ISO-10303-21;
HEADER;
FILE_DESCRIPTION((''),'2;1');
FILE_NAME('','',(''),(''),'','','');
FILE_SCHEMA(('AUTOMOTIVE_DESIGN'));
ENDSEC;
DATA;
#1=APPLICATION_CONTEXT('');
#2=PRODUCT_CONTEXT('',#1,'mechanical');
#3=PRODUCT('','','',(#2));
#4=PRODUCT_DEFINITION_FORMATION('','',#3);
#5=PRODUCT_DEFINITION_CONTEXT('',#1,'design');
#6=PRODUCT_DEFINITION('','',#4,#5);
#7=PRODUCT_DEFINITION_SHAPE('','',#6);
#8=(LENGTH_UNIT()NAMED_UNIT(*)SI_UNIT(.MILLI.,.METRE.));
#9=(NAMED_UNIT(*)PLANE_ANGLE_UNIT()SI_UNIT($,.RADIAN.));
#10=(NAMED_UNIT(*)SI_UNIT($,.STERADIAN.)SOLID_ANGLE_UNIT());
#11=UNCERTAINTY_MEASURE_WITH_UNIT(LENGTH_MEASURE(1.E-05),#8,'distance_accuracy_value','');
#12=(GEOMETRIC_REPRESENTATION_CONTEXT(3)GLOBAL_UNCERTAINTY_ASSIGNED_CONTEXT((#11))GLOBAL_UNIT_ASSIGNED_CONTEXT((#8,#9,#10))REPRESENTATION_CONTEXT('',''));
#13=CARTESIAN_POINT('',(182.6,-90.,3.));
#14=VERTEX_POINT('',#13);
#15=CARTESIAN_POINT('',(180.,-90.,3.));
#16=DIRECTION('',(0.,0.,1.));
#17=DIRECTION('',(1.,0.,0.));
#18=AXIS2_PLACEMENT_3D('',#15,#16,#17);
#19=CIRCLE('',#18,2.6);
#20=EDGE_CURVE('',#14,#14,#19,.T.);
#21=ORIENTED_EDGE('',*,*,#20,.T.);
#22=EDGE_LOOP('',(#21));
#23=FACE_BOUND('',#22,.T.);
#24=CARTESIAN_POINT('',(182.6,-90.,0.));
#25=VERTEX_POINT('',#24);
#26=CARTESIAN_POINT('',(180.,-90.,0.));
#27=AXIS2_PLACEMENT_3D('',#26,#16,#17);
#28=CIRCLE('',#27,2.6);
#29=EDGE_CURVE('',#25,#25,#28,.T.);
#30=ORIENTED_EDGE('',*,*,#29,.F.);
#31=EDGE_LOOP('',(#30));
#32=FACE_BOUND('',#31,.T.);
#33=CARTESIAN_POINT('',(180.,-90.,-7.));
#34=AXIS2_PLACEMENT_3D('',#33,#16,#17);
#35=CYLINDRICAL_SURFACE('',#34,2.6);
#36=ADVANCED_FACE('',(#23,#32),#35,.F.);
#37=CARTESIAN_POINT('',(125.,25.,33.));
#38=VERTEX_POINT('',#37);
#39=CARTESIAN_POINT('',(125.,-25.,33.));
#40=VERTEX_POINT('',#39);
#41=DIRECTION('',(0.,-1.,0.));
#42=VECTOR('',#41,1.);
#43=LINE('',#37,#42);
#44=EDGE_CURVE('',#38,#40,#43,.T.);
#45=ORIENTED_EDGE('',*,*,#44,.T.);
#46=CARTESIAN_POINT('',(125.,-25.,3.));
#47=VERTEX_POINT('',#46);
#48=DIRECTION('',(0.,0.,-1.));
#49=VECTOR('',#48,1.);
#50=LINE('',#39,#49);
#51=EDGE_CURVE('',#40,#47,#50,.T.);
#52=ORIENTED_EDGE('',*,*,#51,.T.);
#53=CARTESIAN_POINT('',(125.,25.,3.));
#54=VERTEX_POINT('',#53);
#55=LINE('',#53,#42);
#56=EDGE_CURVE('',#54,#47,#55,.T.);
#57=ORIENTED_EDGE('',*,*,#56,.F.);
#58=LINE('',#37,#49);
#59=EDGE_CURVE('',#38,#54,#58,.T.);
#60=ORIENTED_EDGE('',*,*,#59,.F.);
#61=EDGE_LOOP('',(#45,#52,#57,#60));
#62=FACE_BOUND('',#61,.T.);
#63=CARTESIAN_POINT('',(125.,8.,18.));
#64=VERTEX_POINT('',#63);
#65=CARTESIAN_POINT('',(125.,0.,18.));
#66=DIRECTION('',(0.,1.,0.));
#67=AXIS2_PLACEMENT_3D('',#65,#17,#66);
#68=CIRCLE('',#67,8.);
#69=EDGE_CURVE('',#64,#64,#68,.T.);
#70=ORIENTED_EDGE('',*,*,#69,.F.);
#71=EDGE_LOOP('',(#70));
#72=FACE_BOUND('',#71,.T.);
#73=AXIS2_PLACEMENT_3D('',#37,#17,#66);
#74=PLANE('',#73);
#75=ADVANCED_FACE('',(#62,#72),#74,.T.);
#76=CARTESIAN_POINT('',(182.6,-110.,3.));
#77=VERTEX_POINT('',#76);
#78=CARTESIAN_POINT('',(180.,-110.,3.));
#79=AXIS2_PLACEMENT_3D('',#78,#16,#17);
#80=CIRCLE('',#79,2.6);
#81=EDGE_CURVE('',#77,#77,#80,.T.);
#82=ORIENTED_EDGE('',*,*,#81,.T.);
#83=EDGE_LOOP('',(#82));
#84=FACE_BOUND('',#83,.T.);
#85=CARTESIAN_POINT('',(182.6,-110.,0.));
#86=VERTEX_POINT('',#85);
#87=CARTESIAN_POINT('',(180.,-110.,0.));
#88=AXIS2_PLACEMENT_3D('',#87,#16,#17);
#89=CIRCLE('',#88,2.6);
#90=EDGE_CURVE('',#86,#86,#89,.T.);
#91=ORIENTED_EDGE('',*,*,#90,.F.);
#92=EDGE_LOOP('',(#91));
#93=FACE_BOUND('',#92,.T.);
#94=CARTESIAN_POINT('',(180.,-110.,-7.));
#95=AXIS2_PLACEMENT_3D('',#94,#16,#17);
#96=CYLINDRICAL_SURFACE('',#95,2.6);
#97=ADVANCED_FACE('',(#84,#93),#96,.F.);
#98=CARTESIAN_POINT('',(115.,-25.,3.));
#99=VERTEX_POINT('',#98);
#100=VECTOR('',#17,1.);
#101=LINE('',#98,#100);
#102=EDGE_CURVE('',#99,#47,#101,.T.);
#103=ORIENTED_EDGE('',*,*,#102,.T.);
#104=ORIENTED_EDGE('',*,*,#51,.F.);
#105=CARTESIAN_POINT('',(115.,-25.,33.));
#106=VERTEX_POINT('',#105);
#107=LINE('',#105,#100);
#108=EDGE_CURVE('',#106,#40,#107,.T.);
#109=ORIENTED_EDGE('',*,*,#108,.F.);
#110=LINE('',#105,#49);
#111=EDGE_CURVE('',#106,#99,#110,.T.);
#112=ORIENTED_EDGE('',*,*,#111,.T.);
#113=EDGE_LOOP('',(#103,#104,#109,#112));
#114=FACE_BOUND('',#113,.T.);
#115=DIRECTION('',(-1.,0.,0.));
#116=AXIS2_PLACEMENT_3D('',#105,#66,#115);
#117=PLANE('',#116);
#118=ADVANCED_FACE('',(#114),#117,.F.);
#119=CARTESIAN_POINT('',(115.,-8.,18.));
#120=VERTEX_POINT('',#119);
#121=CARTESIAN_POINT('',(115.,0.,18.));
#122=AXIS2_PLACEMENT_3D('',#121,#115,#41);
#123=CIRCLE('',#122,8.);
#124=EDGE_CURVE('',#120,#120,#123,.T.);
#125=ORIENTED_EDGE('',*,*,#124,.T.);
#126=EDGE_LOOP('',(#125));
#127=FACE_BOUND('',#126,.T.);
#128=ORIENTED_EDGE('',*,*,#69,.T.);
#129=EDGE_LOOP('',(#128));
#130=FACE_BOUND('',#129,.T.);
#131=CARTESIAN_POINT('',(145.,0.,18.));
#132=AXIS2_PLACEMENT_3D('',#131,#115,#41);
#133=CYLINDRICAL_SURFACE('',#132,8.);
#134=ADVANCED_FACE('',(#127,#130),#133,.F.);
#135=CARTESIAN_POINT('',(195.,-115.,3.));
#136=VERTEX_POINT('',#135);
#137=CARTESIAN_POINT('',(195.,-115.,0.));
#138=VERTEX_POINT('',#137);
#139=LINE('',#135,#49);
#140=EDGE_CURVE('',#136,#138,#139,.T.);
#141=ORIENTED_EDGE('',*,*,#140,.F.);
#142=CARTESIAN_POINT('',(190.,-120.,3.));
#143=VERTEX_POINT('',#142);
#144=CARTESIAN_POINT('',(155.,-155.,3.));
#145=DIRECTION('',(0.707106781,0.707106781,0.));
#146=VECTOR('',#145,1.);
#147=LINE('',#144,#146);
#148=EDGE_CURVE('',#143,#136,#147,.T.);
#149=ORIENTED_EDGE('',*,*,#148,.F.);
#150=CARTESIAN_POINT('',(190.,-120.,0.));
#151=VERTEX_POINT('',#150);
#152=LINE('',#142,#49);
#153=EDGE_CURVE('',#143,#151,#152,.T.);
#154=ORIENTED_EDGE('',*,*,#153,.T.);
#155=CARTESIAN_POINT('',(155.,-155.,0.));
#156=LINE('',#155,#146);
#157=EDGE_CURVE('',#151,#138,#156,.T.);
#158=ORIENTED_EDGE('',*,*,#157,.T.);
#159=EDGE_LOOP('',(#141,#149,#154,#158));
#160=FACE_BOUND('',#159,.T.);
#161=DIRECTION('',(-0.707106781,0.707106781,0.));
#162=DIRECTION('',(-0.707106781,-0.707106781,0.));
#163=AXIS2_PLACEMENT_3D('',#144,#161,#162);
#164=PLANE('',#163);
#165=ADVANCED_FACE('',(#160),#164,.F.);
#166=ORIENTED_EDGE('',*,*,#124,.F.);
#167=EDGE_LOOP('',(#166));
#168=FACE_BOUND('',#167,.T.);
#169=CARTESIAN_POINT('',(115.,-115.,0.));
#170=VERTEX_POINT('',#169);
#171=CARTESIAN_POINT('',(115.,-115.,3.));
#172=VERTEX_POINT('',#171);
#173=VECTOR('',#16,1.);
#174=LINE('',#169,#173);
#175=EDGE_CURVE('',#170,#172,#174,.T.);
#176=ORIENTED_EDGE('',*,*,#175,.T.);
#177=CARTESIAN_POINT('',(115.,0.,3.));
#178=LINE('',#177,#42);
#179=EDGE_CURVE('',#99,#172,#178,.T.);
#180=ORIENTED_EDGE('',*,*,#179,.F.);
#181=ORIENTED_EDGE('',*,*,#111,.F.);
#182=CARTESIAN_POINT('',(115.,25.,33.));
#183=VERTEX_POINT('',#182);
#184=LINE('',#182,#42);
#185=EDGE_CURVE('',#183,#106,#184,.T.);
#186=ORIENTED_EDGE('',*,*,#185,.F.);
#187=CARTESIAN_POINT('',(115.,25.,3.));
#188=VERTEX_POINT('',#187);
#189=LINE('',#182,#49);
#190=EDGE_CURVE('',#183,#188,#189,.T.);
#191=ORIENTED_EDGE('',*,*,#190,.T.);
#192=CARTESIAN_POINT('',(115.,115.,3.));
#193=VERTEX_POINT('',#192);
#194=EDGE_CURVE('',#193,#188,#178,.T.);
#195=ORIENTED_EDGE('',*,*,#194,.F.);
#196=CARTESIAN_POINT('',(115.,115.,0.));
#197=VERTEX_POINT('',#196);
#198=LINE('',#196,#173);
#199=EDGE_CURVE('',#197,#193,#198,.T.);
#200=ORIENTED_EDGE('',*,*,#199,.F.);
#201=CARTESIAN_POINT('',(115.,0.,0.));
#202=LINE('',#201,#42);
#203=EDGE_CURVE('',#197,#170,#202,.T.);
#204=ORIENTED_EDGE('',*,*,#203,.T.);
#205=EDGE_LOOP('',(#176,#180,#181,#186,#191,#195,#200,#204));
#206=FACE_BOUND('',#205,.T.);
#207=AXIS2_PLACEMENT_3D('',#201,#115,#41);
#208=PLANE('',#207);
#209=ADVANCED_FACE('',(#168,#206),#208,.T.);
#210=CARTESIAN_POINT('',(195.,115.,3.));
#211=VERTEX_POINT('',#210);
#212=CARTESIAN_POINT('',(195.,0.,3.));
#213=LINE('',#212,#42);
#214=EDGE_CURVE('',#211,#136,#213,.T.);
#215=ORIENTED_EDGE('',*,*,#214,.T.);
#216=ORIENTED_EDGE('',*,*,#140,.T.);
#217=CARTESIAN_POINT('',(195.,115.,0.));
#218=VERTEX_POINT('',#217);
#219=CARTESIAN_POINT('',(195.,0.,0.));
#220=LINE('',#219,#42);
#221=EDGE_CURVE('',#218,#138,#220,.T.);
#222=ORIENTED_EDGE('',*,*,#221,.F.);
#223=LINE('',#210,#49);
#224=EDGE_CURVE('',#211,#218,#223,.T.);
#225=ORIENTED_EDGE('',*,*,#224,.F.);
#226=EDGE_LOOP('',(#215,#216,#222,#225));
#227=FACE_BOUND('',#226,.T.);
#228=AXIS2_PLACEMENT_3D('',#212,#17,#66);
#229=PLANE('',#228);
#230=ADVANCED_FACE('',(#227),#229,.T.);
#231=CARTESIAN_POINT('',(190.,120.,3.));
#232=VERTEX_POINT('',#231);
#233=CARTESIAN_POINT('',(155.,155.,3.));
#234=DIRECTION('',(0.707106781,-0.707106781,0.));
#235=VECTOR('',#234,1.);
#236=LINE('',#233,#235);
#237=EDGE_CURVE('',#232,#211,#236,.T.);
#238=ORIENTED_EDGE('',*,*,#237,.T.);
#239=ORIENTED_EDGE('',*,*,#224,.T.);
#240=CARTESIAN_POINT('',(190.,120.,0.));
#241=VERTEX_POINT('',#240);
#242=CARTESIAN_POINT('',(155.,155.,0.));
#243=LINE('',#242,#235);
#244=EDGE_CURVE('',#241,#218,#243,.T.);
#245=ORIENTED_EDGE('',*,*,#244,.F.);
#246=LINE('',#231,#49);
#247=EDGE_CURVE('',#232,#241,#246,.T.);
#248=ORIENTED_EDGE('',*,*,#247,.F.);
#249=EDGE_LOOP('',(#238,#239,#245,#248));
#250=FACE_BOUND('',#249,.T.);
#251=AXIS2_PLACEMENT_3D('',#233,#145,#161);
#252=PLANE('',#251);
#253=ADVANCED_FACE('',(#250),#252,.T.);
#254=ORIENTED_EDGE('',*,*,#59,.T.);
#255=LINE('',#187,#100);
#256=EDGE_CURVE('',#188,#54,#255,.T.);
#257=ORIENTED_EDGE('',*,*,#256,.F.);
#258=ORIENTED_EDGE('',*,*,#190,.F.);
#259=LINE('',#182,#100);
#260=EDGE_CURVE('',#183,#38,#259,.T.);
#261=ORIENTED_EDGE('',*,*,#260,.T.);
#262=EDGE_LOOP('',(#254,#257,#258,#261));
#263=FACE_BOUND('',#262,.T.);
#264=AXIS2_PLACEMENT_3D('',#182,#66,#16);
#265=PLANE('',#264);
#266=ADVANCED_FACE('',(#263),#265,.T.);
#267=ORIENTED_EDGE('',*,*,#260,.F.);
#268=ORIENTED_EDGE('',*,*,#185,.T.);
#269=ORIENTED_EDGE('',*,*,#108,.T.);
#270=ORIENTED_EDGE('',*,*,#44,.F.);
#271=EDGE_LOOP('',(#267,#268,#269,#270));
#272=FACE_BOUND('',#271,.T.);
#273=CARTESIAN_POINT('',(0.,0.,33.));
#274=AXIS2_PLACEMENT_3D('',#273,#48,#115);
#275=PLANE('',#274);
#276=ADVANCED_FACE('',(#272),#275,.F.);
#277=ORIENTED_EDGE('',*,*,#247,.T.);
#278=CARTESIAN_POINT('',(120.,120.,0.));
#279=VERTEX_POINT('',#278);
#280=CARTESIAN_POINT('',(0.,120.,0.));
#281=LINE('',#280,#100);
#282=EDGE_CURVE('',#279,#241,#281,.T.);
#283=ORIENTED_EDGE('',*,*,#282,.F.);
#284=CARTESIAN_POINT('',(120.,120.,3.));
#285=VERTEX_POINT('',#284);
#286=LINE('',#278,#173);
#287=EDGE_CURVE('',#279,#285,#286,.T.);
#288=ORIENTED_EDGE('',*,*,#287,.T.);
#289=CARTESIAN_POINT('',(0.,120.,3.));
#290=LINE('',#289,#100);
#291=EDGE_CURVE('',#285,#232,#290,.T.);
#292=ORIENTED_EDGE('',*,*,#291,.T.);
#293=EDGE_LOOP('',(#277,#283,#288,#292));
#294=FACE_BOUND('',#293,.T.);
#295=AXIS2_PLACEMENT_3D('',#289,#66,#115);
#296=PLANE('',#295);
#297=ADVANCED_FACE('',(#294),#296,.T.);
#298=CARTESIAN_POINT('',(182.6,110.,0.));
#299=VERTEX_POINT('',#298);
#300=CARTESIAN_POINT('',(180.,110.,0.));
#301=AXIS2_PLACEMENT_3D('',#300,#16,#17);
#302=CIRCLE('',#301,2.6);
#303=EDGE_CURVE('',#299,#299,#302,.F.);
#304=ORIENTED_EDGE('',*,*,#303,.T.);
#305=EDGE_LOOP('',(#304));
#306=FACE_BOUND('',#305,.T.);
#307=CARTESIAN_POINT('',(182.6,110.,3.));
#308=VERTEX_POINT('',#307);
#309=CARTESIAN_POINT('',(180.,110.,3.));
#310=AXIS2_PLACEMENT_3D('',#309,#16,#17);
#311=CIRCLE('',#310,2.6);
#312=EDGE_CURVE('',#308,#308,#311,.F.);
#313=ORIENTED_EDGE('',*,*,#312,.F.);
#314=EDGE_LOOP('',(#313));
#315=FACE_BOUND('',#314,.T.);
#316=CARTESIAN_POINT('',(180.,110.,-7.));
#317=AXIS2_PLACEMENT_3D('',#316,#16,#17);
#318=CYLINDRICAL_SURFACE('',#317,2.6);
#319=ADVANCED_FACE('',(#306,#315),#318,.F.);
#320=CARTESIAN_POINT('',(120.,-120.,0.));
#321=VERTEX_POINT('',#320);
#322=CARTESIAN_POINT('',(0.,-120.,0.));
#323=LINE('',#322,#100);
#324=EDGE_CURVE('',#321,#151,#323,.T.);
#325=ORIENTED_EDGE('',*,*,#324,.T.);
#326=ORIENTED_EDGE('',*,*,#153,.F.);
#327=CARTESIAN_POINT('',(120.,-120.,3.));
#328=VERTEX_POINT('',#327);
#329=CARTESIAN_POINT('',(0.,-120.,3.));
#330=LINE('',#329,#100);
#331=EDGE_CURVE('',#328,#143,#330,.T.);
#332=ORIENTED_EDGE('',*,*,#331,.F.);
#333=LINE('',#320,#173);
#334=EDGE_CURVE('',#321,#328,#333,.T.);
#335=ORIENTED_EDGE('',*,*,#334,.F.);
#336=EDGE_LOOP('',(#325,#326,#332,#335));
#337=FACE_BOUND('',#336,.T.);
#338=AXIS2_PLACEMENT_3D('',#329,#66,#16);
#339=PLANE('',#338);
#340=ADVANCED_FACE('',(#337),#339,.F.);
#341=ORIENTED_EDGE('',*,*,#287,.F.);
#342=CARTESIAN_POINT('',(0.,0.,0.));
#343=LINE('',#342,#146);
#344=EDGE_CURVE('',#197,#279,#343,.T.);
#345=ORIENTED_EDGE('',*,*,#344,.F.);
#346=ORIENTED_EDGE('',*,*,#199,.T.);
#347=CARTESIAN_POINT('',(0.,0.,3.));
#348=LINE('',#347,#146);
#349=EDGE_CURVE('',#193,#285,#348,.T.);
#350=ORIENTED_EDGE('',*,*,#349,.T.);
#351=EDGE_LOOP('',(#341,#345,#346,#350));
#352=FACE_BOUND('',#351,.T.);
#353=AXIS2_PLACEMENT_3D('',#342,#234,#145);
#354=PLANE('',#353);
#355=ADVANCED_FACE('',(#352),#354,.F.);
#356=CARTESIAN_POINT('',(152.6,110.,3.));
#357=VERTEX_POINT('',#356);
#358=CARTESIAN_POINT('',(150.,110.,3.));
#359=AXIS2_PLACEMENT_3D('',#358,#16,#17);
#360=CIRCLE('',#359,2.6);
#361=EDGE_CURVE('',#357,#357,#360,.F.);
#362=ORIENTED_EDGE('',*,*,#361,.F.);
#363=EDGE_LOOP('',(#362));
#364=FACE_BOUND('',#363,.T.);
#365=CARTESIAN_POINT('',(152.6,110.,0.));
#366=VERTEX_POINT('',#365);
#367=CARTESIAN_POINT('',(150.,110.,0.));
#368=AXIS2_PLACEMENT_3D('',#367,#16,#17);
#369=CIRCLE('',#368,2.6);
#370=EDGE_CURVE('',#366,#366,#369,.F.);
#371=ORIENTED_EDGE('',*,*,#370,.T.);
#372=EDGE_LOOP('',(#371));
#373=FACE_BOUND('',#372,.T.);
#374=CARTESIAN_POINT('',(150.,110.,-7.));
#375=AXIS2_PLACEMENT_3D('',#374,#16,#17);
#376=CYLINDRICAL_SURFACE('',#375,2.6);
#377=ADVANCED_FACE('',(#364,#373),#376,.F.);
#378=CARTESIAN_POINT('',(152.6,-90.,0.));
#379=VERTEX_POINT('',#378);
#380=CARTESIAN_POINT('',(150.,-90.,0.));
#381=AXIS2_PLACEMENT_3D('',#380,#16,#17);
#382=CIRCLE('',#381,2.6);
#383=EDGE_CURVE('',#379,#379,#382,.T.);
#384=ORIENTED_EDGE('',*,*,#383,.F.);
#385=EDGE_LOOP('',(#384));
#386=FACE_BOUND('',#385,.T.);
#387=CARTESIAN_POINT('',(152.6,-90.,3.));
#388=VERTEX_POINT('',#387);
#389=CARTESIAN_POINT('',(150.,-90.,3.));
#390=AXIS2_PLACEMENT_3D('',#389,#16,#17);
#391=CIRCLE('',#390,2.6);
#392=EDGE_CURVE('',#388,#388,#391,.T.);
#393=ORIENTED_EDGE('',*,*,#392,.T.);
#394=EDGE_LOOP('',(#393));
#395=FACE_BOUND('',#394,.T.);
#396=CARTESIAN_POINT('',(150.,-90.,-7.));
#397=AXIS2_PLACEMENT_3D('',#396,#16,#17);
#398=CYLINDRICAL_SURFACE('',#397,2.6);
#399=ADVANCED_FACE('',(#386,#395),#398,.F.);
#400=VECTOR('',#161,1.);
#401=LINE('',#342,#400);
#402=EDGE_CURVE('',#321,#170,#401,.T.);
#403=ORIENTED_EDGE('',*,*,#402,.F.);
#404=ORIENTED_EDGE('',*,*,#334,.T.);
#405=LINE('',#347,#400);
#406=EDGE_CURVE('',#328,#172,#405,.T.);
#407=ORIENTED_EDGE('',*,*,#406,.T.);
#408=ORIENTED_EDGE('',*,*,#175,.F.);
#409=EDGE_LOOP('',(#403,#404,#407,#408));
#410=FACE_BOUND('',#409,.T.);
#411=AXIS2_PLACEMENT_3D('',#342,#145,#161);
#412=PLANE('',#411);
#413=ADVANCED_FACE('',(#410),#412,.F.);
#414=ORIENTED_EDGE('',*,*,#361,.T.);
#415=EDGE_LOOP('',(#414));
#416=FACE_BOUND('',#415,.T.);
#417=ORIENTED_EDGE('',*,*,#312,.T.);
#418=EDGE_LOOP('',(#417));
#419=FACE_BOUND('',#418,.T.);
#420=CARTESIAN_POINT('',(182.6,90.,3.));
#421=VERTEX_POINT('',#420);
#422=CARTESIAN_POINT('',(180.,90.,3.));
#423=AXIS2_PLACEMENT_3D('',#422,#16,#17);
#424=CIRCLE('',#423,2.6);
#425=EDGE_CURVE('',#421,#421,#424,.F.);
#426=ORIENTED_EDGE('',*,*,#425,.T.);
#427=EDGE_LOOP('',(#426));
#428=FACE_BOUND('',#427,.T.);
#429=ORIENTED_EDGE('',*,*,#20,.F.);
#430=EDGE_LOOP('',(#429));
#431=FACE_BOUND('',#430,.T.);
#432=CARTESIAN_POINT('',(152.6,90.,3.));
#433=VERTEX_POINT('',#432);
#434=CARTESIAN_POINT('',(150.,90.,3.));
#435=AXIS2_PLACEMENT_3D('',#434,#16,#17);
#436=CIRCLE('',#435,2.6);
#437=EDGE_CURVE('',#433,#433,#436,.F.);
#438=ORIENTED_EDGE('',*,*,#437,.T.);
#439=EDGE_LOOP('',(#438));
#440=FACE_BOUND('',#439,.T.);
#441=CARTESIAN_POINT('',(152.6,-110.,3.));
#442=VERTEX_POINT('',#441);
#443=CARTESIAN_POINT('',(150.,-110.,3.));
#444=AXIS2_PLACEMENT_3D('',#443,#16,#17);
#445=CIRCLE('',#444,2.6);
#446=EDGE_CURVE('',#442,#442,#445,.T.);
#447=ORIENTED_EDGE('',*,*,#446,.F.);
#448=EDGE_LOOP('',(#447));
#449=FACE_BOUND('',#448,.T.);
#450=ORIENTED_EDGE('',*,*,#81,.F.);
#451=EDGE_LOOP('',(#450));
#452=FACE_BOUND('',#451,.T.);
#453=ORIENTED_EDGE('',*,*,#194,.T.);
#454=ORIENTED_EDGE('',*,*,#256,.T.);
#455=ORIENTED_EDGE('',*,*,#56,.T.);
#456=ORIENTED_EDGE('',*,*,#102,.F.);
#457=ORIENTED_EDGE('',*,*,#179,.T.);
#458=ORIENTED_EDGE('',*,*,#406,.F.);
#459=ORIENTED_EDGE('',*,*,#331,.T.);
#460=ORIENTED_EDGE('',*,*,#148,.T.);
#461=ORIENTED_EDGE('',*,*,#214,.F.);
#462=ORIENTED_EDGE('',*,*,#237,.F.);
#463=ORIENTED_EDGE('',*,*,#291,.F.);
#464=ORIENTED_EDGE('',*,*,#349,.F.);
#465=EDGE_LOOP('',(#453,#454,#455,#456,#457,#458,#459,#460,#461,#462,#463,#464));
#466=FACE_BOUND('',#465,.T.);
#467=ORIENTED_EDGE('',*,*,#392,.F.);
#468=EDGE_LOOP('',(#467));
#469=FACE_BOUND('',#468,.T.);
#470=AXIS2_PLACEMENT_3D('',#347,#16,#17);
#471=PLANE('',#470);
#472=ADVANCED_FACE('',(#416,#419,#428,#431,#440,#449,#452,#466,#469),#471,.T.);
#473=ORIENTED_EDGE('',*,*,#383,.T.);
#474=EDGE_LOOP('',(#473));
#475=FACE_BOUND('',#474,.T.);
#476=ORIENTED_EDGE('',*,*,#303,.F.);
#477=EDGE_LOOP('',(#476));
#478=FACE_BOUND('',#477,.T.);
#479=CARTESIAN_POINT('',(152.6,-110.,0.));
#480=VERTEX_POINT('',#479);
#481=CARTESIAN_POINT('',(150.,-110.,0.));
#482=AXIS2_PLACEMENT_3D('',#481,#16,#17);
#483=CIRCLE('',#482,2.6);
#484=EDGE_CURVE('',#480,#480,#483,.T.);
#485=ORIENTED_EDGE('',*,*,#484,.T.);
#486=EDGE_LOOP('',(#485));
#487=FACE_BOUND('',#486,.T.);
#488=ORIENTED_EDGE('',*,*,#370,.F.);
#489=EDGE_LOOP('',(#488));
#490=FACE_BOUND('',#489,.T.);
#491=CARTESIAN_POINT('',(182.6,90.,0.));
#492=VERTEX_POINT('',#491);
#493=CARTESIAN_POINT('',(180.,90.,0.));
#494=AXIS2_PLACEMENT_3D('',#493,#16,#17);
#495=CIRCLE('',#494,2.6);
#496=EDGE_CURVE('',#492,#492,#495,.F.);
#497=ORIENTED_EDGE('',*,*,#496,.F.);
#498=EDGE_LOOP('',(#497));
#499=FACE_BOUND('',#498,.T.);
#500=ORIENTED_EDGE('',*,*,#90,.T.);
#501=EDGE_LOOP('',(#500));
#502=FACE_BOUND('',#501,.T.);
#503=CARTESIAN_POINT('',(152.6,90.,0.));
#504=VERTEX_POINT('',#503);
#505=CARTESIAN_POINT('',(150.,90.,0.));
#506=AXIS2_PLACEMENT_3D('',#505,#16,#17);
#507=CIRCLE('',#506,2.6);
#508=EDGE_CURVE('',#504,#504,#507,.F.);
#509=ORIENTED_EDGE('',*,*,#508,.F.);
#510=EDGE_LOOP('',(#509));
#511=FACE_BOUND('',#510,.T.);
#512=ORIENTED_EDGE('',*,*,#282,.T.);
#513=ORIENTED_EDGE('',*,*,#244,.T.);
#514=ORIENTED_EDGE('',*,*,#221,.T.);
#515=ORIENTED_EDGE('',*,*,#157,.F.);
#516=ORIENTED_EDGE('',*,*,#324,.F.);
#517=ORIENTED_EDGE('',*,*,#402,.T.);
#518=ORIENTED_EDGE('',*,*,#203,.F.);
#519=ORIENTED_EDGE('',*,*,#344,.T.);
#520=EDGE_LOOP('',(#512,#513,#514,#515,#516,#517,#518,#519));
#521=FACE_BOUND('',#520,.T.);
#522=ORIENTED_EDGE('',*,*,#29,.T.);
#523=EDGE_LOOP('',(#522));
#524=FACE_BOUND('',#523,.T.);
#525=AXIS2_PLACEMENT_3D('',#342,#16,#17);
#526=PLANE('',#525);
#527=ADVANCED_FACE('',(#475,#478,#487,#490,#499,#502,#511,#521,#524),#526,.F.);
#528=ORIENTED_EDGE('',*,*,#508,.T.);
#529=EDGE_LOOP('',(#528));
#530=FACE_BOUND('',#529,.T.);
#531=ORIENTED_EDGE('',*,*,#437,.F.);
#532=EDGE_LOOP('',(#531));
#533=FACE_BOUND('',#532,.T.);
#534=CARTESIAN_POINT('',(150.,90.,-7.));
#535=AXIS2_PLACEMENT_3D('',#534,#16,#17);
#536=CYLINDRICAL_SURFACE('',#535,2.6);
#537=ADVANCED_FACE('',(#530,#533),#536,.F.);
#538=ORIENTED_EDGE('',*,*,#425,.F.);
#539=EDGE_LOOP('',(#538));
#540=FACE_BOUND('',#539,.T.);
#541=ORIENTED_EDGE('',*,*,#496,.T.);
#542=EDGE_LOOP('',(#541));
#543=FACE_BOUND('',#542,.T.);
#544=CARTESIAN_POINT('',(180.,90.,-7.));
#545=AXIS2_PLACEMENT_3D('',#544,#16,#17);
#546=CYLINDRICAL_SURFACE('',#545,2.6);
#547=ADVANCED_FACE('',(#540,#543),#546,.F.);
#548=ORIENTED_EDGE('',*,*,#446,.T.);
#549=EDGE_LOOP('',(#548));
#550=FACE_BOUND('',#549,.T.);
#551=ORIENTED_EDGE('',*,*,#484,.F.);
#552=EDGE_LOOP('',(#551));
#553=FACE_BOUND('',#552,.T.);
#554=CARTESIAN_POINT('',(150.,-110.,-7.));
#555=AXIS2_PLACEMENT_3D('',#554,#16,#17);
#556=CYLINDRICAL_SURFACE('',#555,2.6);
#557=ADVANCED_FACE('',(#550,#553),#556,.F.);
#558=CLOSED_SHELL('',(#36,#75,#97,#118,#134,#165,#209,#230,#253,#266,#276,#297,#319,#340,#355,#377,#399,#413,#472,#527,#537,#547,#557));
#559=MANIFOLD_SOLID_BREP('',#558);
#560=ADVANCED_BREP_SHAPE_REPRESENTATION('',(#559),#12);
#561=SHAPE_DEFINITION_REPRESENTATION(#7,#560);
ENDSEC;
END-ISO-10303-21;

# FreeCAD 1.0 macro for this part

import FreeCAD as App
import Part
import Sketcher

V = App.Vector

doc = App.newDocument("Part")
params = doc.addObject("Spreadsheet::Sheet", "Params")
for row, (alias, value) in enumerate([
    ("sketch1_diameter", "6 mm"),
    ("sketch1_diameter2", "20 mm"),
    ("sketch1_diameter3", "15 mm"),
    ("sketch1_width", "75 mm"),
    ("sketch1_width2", "165 mm"),
    ("pad1_length", "3 mm"),
    ("sketch2_diameter", "20 mm"),
    ("sketch2_diameter2", "15 mm"),
    ("pad2_length", "3 mm"),
    ("sketch3_diameter", "6 mm"),
    ("sketch3_width", "5 mm"),
    ("sketch3_width2", "165 mm"),
    ("sketch3_width3", "45 mm"),
    ("sketch3_width4", "90 mm"),
    ("pocket1_length", "3 mm"),
    ("sketch4_width", "10 mm"),
    ("sketch4_height", "50 mm"),
    ("pad3_length", "30 mm"),
    ("sketch5_diameter", "16 mm"),
    ("pocket2_length", "30 mm"),
    ("sketch6_diameter", "5.2 mm"),
    ("pocket3_length", "10 mm"),
], start=1):
    params.set(f"A{row}", alias)
    params.set(f"B{row}", "=" + value)
    params.setAlias(f"B{row}", alias)

body = doc.addObject("PartDesign::Body", "Body")

sketch1 = body.newObject("Sketcher::SketchObject", "Sketch")
sketch1.AttachmentSupport = (doc.getObject("XY_Plane"), [""])
sketch1.MapMode = "FlatFace"
sketch1.addGeometry(Part.LineSegment(V(195, -115, 0), V(195, 115, 0)), False)
sketch1.addGeometry(Part.LineSegment(V(195, 115, 0), V(190, 120, 0)), False)
sketch1.addGeometry(Part.LineSegment(V(190, 120, 0), V(115, 120, 0)), False)
sketch1.addGeometry(Part.LineSegment(V(115, 120, 0), V(75, 75, 0)), False)
sketch1.addGeometry(Part.LineSegment(V(75, 75, 0), V(-90, 75, 0)), False)
sketch1.addGeometry(Part.LineSegment(V(-90, 75, 0), V(-130, 120, 0)), False)
sketch1.addGeometry(Part.LineSegment(V(-130, 120, 0), V(-175, 120, 0)), False)
sketch1.addGeometry(Part.LineSegment(V(-175, 120, 0), V(-195, 90, 0)), False)
sketch1.addGeometry(Part.LineSegment(V(-195, 90, 0), V(-195, -90, 0)), False)
sketch1.addGeometry(Part.LineSegment(V(-195, -90, 0), V(-175, -120, 0)), False)
sketch1.addGeometry(Part.LineSegment(V(-175, -120, 0), V(-130, -120, 0)), False)
sketch1.addGeometry(Part.LineSegment(V(-130, -120, 0), V(-90, -75, 0)), False)
sketch1.addGeometry(Part.LineSegment(V(-90, -75, 0), V(75, -75, 0)), False)
sketch1.addGeometry(Part.LineSegment(V(75, -75, 0), V(115, -120, 0)), False)
sketch1.addGeometry(Part.LineSegment(V(115, -120, 0), V(190, -120, 0)), False)
sketch1.addGeometry(Part.LineSegment(V(190, -120, 0), V(195, -115, 0)), False)
sketch1.addGeometry(Part.Circle(V(-184.089468, -70, 0), V(0, 0, 1), 3), False)
sketch1.addGeometry(Part.Circle(V(-87, -69, 0), V(0, 0, 1), 3), False)
sketch1.addGeometry(Part.Circle(V(-184.089468, 70, 0), V(0, 0, 1), 3), False)
sketch1.addGeometry(Part.Circle(V(-87, 69, 0), V(0, 0, 1), 3), False)
sketch1.addGeometry(Part.LineSegment(V(45, -60, 0), V(-45, -60, 0)), False)
sketch1.addGeometry(Part.LineSegment(V(-45, -60, 0), V(-45, 60, 0)), False)
sketch1.addGeometry(Part.LineSegment(V(-45, 60, 0), V(45, 60, 0)), False)
sketch1.addGeometry(Part.LineSegment(V(45, 60, 0), V(45, -60, 0)), False)
sketch1.addGeometry(Part.Circle(V(75, 0, 0), V(0, 0, 1), 10), False)
sketch1.addGeometry(Part.Circle(V(117.5, 0, 0), V(0, 0, 1), 7.5), False)
sketch1.addGeometry(Part.Circle(V(104.37955, -93, 0), V(0, 0, 1), 3), False)
sketch1.addGeometry(Part.Circle(V(104.37955, 93, 0), V(0, 0, 1), 3), False)
sketch1.addConstraint(Sketcher.Constraint("Coincident", 0, 2, 1, 1))
sketch1.addConstraint(Sketcher.Constraint("Coincident", 1, 2, 2, 1))
sketch1.addConstraint(Sketcher.Constraint("Coincident", 2, 2, 3, 1))
sketch1.addConstraint(Sketcher.Constraint("Coincident", 3, 2, 4, 1))
sketch1.addConstraint(Sketcher.Constraint("Coincident", 4, 2, 5, 1))
sketch1.addConstraint(Sketcher.Constraint("Coincident", 5, 2, 6, 1))
sketch1.addConstraint(Sketcher.Constraint("Coincident", 6, 2, 7, 1))
sketch1.addConstraint(Sketcher.Constraint("Coincident", 7, 2, 8, 1))
sketch1.addConstraint(Sketcher.Constraint("Coincident", 8, 2, 9, 1))
sketch1.addConstraint(Sketcher.Constraint("Coincident", 9, 2, 10, 1))
sketch1.addConstraint(Sketcher.Constraint("Coincident", 10, 2, 11, 1))
sketch1.addConstraint(Sketcher.Constraint("Coincident", 11, 2, 12, 1))
sketch1.addConstraint(Sketcher.Constraint("Coincident", 12, 2, 13, 1))
sketch1.addConstraint(Sketcher.Constraint("Coincident", 13, 2, 14, 1))
sketch1.addConstraint(Sketcher.Constraint("Coincident", 14, 2, 15, 1))
sketch1.addConstraint(Sketcher.Constraint("Coincident", 15, 2, 0, 1))
sketch1.addConstraint(Sketcher.Constraint("Coincident", 20, 2, 21, 1))
sketch1.addConstraint(Sketcher.Constraint("Coincident", 21, 2, 22, 1))
sketch1.addConstraint(Sketcher.Constraint("Coincident", 22, 2, 23, 1))
sketch1.addConstraint(Sketcher.Constraint("Coincident", 23, 2, 20, 1))
sketch1.addConstraint(Sketcher.Constraint("Vertical", 0))
sketch1.addConstraint(Sketcher.Constraint("Horizontal", 2))
sketch1.addConstraint(Sketcher.Constraint("Horizontal", 4))
sketch1.addConstraint(Sketcher.Constraint("Horizontal", 6))
sketch1.addConstraint(Sketcher.Constraint("Vertical", 8))
sketch1.addConstraint(Sketcher.Constraint("Horizontal", 10))
sketch1.addConstraint(Sketcher.Constraint("Horizontal", 12))
sketch1.addConstraint(Sketcher.Constraint("Horizontal", 14))
sketch1.addConstraint(Sketcher.Constraint("Horizontal", 20))
sketch1.addConstraint(Sketcher.Constraint("Vertical", 21))
sketch1.addConstraint(Sketcher.Constraint("Horizontal", 22))
sketch1.addConstraint(Sketcher.Constraint("Vertical", 23))
sketch1.addConstraint(Sketcher.Constraint("Equal", 16, 17))
sketch1.addConstraint(Sketcher.Constraint("Equal", 17, 18))
sketch1.addConstraint(Sketcher.Constraint("Equal", 18, 19))
sketch1.addConstraint(Sketcher.Constraint("Equal", 19, 26))
sketch1.addConstraint(Sketcher.Constraint("Equal", 26, 27))
sketch1.addConstraint(Sketcher.Constraint("Symmetric", 20, 2, 22, 2, -1, 1))
sketch1.addConstraint(Sketcher.Constraint("Symmetric", 16, 3, 18, 3, -1))
sketch1.addConstraint(Sketcher.Constraint("Symmetric", 17, 3, 19, 3, -1))
sketch1.addConstraint(Sketcher.Constraint("Symmetric", 26, 3, 27, 3, -1))
sketch1.addConstraint(Sketcher.Constraint("Symmetric", 6, 2, 9, 2, -1))
sketch1.addConstraint(Sketcher.Constraint("Symmetric", 4, 2, 11, 2, -1))
sketch1.addConstraint(Sketcher.Constraint("Symmetric", 2, 2, 13, 2, -1))
sketch1.addConstraint(Sketcher.Constraint("PointOnObject", 24, 3, -1))
sketch1.addConstraint(Sketcher.Constraint("PointOnObject", 25, 3, -1))
sketch1.addConstraint(Sketcher.Constraint("Parallel", 3, 11))
sketch1.addConstraint(Sketcher.Constraint("Parallel", 5, 13))
sketch1.addConstraint(Sketcher.Constraint("Perpendicular", 1, 15))
sketch1.addConstraint(Sketcher.Constraint("Horizontal", 2, 2, 5, 2))
sketch1.addConstraint(Sketcher.Constraint("Vertical", 24, 3, 3, 2))
sketch1.addConstraint(Sketcher.Constraint("Vertical", 5, 2, 10, 2))
sketch1.addConstraint(Sketcher.Constraint("Vertical", 1, 2, 14, 2))
sketch1.addConstraint(Sketcher.Constraint("Equal", 7, 9))
sketch1.addConstraint(Sketcher.Constraint("Equal", 1, 15))
sketch1.addConstraint(Sketcher.Constraint("Diameter", 16, 6.0))
sketch1.addConstraint(Sketcher.Constraint("Diameter", 24, 20.0))
sketch1.addConstraint(Sketcher.Constraint("Diameter", 25, 15.0))
sketch1.addConstraint(Sketcher.Constraint("DistanceX", 2, 2, 2, 1, 75.0))
sketch1.addConstraint(Sketcher.Constraint("DistanceX", 4, 2, 4, 1, 165.0))
sketch1.addConstraint(Sketcher.Constraint("DistanceX", 6, 2, 6, 1, 45.0))
sketch1.addConstraint(Sketcher.Constraint("DistanceX", 20, 2, 20, 1, 90.0))
sketch1.addConstraint(Sketcher.Constraint("DistanceY", 0, 1, 0, 2, 230.0))
sketch1.addConstraint(Sketcher.Constraint("DistanceY", 8, 2, 8, 1, 180.0))
sketch1.addConstraint(Sketcher.Constraint("DistanceY", 21, 1, 21, 2, 120.0))
sketch1.addConstraint(Sketcher.Constraint("DistanceY", 16, 3, -1, 1, 70.0))
sketch1.addConstraint(Sketcher.Constraint("DistanceX", 17, 3, -1, 1, 87.0))
sketch1.addConstraint(Sketcher.Constraint("DistanceY", 17, 3, -1, 1, 69.0))
sketch1.addConstraint(Sketcher.Constraint("DistanceX", -1, 1, 24, 3, 75.0))
sketch1.addConstraint(Sketcher.Constraint("DistanceY", 26, 3, -1, 1, 93.0))
sketch1.addConstraint(Sketcher.Constraint("DistanceX", -1, 1, 0, 2, 195.0))
sketch1.addConstraint(Sketcher.Constraint("DistanceX", -1, 1, 1, 2, 190.0))
sketch1.addConstraint(Sketcher.Constraint("DistanceY", -1, 1, 3, 2, 75.0))
sketch1.addConstraint(Sketcher.Constraint("DistanceX", 7, 2, -1, 1, 195.0))
sketch1.addConstraint(Sketcher.Constraint("DistanceX", -1, 1, 25, 3, 117.5))
sketch1.addConstraint(Sketcher.Constraint("DistanceX", 16, 3, -1, 1, 184.089468))
sketch1.addConstraint(Sketcher.Constraint("DistanceX", -1, 1, 26, 3, 104.37955))
sketch1.setExpression("Constraints[55]", "Params.sketch1_diameter")
sketch1.setExpression("Constraints[56]", "Params.sketch1_diameter2")
sketch1.setExpression("Constraints[57]", "Params.sketch1_diameter3")
sketch1.setExpression("Constraints[58]", "Params.sketch1_width")
sketch1.setExpression("Constraints[59]", "Params.sketch1_width2")
pad1 = body.newObject("PartDesign::Pad", "Pad")
pad1.Profile = sketch1
pad1.setExpression("Length", "Params.pad1_length")

sketch2 = body.newObject("Sketcher::SketchObject", "Sketch001")
sketch2.AttachmentSupport = (doc.getObject("XY_Plane"), [""])
sketch2.MapMode = "FlatFace"
sketch2.addGeometry(Part.Circle(V(75, 0, 0), V(0, 0, 1), 10), False)
sketch2.addGeometry(Part.Circle(V(117.5, 0, 0), V(0, 0, 1), 7.5), False)
sketch2.addConstraint(Sketcher.Constraint("PointOnObject", 0, 3, -1))
sketch2.addConstraint(Sketcher.Constraint("PointOnObject", 1, 3, -1))
sketch2.addConstraint(Sketcher.Constraint("Diameter", 0, 20.0))
sketch2.addConstraint(Sketcher.Constraint("Diameter", 1, 15.0))
sketch2.addConstraint(Sketcher.Constraint("DistanceX", -1, 1, 0, 3, 75.0))
sketch2.addConstraint(Sketcher.Constraint("DistanceX", -1, 1, 1, 3, 117.5))
sketch2.setExpression("Constraints[2]", "Params.sketch2_diameter")
sketch2.setExpression("Constraints[3]", "Params.sketch2_diameter2")
pad2 = body.newObject("PartDesign::Pad", "Pad001")
pad2.Profile = sketch2
pad2.setExpression("Length", "Params.pad2_length")

sketch3 = body.newObject("Sketcher::SketchObject", "Sketch002")
sketch3.AttachmentSupport = (doc.getObject("XY_Plane"), [""])
sketch3.MapMode = "FlatFace"
sketch3.addGeometry(Part.LineSegment(V(115, -115, 0), V(115, 115, 0)), False)
sketch3.addGeometry(Part.LineSegment(V(115, 115, 0), V(120, 120, 0)), False)
sketch3.addGeometry(Part.LineSegment(V(120, 120, 0), V(115, 120, 0)), False)
sketch3.addGeometry(Part.LineSegment(V(115, 120, 0), V(75, 75, 0)), False)
sketch3.addGeometry(Part.LineSegment(V(75, 75, 0), V(-90, 75, 0)), False)
sketch3.addGeometry(Part.LineSegment(V(-90, 75, 0), V(-130, 120, 0)), False)
sketch3.addGeometry(Part.LineSegment(V(-130, 120, 0), V(-175, 120, 0)), False)
sketch3.addGeometry(Part.LineSegment(V(-175, 120, 0), V(-195, 90, 0)), False)
sketch3.addGeometry(Part.LineSegment(V(-195, 90, 0), V(-195, -90, 0)), False)
sketch3.addGeometry(Part.LineSegment(V(-195, -90, 0), V(-175, -120, 0)), False)
sketch3.addGeometry(Part.LineSegment(V(-175, -120, 0), V(-130, -120, 0)), False)
sketch3.addGeometry(Part.LineSegment(V(-130, -120, 0), V(-90, -75, 0)), False)
sketch3.addGeometry(Part.LineSegment(V(-90, -75, 0), V(75, -75, 0)), False)
sketch3.addGeometry(Part.LineSegment(V(75, -75, 0), V(115, -120, 0)), False)
sketch3.addGeometry(Part.LineSegment(V(115, -120, 0), V(120, -120, 0)), False)
sketch3.addGeometry(Part.LineSegment(V(120, -120, 0), V(115, -115, 0)), False)
sketch3.addGeometry(Part.Circle(V(104.37955, -93, 0), V(0, 0, 1), 3), False)
sketch3.addGeometry(Part.Circle(V(-87, -69, 0), V(0, 0, 1), 3), False)
sketch3.addGeometry(Part.Circle(V(-184.089468, -70, 0), V(0, 0, 1), 3), False)
sketch3.addGeometry(Part.LineSegment(V(-45, -60, 0), V(-45, 60, 0)), False)
sketch3.addGeometry(Part.LineSegment(V(-45, 60, 0), V(45, 60, 0)), False)
sketch3.addGeometry(Part.LineSegment(V(45, 60, 0), V(45, -60, 0)), False)
sketch3.addGeometry(Part.LineSegment(V(45, -60, 0), V(-45, -60, 0)), False)
sketch3.addGeometry(Part.Circle(V(104.37955, 93, 0), V(0, 0, 1), 3), False)
sketch3.addGeometry(Part.Circle(V(-87, 69, 0), V(0, 0, 1), 3), False)
sketch3.addGeometry(Part.Circle(V(-184.089468, 70, 0), V(0, 0, 1), 3), False)
sketch3.addConstraint(Sketcher.Constraint("Coincident", 0, 2, 1, 1))
sketch3.addConstraint(Sketcher.Constraint("Coincident", 1, 2, 2, 1))
sketch3.addConstraint(Sketcher.Constraint("Coincident", 2, 2, 3, 1))
sketch3.addConstraint(Sketcher.Constraint("Coincident", 3, 2, 4, 1))
sketch3.addConstraint(Sketcher.Constraint("Coincident", 4, 2, 5, 1))
sketch3.addConstraint(Sketcher.Constraint("Coincident", 5, 2, 6, 1))
sketch3.addConstraint(Sketcher.Constraint("Coincident", 6, 2, 7, 1))
sketch3.addConstraint(Sketcher.Constraint("Coincident", 7, 2, 8, 1))
sketch3.addConstraint(Sketcher.Constraint("Coincident", 8, 2, 9, 1))
sketch3.addConstraint(Sketcher.Constraint("Coincident", 9, 2, 10, 1))
sketch3.addConstraint(Sketcher.Constraint("Coincident", 10, 2, 11, 1))
sketch3.addConstraint(Sketcher.Constraint("Coincident", 11, 2, 12, 1))
sketch3.addConstraint(Sketcher.Constraint("Coincident", 12, 2, 13, 1))
sketch3.addConstraint(Sketcher.Constraint("Coincident", 13, 2, 14, 1))
sketch3.addConstraint(Sketcher.Constraint("Coincident", 14, 2, 15, 1))
sketch3.addConstraint(Sketcher.Constraint("Coincident", 15, 2, 0, 1))
sketch3.addConstraint(Sketcher.Constraint("Coincident", 19, 2, 20, 1))
sketch3.addConstraint(Sketcher.Constraint("Coincident", 20, 2, 21, 1))
sketch3.addConstraint(Sketcher.Constraint("Coincident", 21, 2, 22, 1))
sketch3.addConstraint(Sketcher.Constraint("Coincident", 22, 2, 19, 1))
sketch3.addConstraint(Sketcher.Constraint("Vertical", 0))
sketch3.addConstraint(Sketcher.Constraint("Horizontal", 2))
sketch3.addConstraint(Sketcher.Constraint("Horizontal", 4))
sketch3.addConstraint(Sketcher.Constraint("Horizontal", 6))
sketch3.addConstraint(Sketcher.Constraint("Vertical", 8))
sketch3.addConstraint(Sketcher.Constraint("Horizontal", 10))
sketch3.addConstraint(Sketcher.Constraint("Horizontal", 12))
sketch3.addConstraint(Sketcher.Constraint("Horizontal", 14))
sketch3.addConstraint(Sketcher.Constraint("Vertical", 19))
sketch3.addConstraint(Sketcher.Constraint("Horizontal", 20))
sketch3.addConstraint(Sketcher.Constraint("Vertical", 21))
sketch3.addConstraint(Sketcher.Constraint("Horizontal", 22))
sketch3.addConstraint(Sketcher.Constraint("Equal", 16, 17))
sketch3.addConstraint(Sketcher.Constraint("Equal", 17, 18))
sketch3.addConstraint(Sketcher.Constraint("Equal", 18, 23))
sketch3.addConstraint(Sketcher.Constraint("Equal", 23, 24))
sketch3.addConstraint(Sketcher.Constraint("Equal", 24, 25))
sketch3.addConstraint(Sketcher.Constraint("Symmetric", 19, 2, 21, 2, -1, 1))
sketch3.addConstraint(Sketcher.Constraint("Symmetric", 16, 3, 23, 3, -1))
sketch3.addConstraint(Sketcher.Constraint("Symmetric", 17, 3, 24, 3, -1))
sketch3.addConstraint(Sketcher.Constraint("Symmetric", 18, 3, 25, 3, -1))
sketch3.addConstraint(Sketcher.Constraint("Symmetric", 6, 2, 9, 2, -1))
sketch3.addConstraint(Sketcher.Constraint("Symmetric", 4, 2, 11, 2, -1))
sketch3.addConstraint(Sketcher.Constraint("Symmetric", 2, 2, 13, 2, -1))
sketch3.addConstraint(Sketcher.Constraint("Parallel", 3, 11))
sketch3.addConstraint(Sketcher.Constraint("Parallel", 5, 13))
sketch3.addConstraint(Sketcher.Constraint("Perpendicular", 1, 15))
sketch3.addConstraint(Sketcher.Constraint("Horizontal", 2, 2, 5, 2))
sketch3.addConstraint(Sketcher.Constraint("Vertical", 0, 2, 2, 2))
sketch3.addConstraint(Sketcher.Constraint("Vertical", 5, 2, 10, 2))
sketch3.addConstraint(Sketcher.Constraint("Vertical", 1, 2, 14, 2))
sketch3.addConstraint(Sketcher.Constraint("Equal", 7, 9))
sketch3.addConstraint(Sketcher.Constraint("Equal", 1, 15))
sketch3.addConstraint(Sketcher.Constraint("Diameter", 16, 6.0))
sketch3.addConstraint(Sketcher.Constraint("DistanceX", 2, 2, 2, 1, 5.0))
sketch3.addConstraint(Sketcher.Constraint("DistanceX", 4, 2, 4, 1, 165.0))
sketch3.addConstraint(Sketcher.Constraint("DistanceX", 6, 2, 6, 1, 45.0))
sketch3.addConstraint(Sketcher.Constraint("DistanceX", 20, 1, 20, 2, 90.0))
sketch3.addConstraint(Sketcher.Constraint("DistanceY", 0, 1, 0, 2, 230.0))
sketch3.addConstraint(Sketcher.Constraint("DistanceY", 8, 2, 8, 1, 180.0))
sketch3.addConstraint(Sketcher.Constraint("DistanceY", 19, 1, 19, 2, 120.0))
sketch3.addConstraint(Sketcher.Constraint("DistanceY", 16, 3, -1, 1, 93.0))
sketch3.addConstraint(Sketcher.Constraint("DistanceX", 17, 3, -1, 1, 87.0))
sketch3.addConstraint(Sketcher.Constraint("DistanceY", 17, 3, -1, 1, 69.0))
sketch3.addConstraint(Sketcher.Constraint("DistanceY", 18, 3, -1, 1, 70.0))
sketch3.addConstraint(Sketcher.Constraint("DistanceX", -1, 1, 0, 2, 115.0))
sketch3.addConstraint(Sketcher.Constraint("DistanceX", -1, 1, 3, 2, 75.0))
sketch3.addConstraint(Sketcher.Constraint("DistanceY", -1, 1, 3, 2, 75.0))
sketch3.addConstraint(Sketcher.Constraint("DistanceX", 7, 2, -1, 1, 195.0))
sketch3.addConstraint(Sketcher.Constraint("DistanceX", -1, 1, 16, 3, 104.37955))
sketch3.addConstraint(Sketcher.Constraint("DistanceX", 18, 3, -1, 1, 184.089468))
sketch3.setExpression("Constraints[53]", "Params.sketch3_diameter")
sketch3.setExpression("Constraints[54]", "Params.sketch3_width")
sketch3.setExpression("Constraints[55]", "Params.sketch3_width2")
sketch3.setExpression("Constraints[56]", "Params.sketch3_width3")
sketch3.setExpression("Constraints[57]", "Params.sketch3_width4")
pocket1 = body.newObject("PartDesign::Pocket", "Pocket")
pocket1.Profile = sketch3
pocket1.setExpression("Length", "Params.pocket1_length")
pocket1.Reversed = True

sketch4 = body.newObject("Sketcher::SketchObject", "Sketch003")
sketch4.AttachmentSupport = (doc.getObject("XY_Plane"), [""])
sketch4.MapMode = "FlatFace"
sketch4.AttachmentOffset = App.Placement(V(0, 0, 3), App.Rotation())
sketch4.addGeometry(Part.LineSegment(V(115, 25, 0), V(115, -25, 0)), False)
sketch4.addGeometry(Part.LineSegment(V(115, -25, 0), V(125, -25, 0)), False)
sketch4.addGeometry(Part.LineSegment(V(125, -25, 0), V(125, 25, 0)), False)
sketch4.addGeometry(Part.LineSegment(V(125, 25, 0), V(115, 25, 0)), False)
sketch4.addConstraint(Sketcher.Constraint("Coincident", 0, 2, 1, 1))
sketch4.addConstraint(Sketcher.Constraint("Coincident", 1, 2, 2, 1))
sketch4.addConstraint(Sketcher.Constraint("Coincident", 2, 2, 3, 1))
sketch4.addConstraint(Sketcher.Constraint("Coincident", 3, 2, 0, 1))
sketch4.addConstraint(Sketcher.Constraint("Vertical", 0))
sketch4.addConstraint(Sketcher.Constraint("Horizontal", 1))
sketch4.addConstraint(Sketcher.Constraint("Vertical", 2))
sketch4.addConstraint(Sketcher.Constraint("Horizontal", 3))
sketch4.addConstraint(Sketcher.Constraint("DistanceX", 1, 1, 1, 2, 10.0))
sketch4.addConstraint(Sketcher.Constraint("DistanceY", 0, 2, 0, 1, 50.0))
sketch4.addConstraint(Sketcher.Constraint("DistanceX", -1, 1, 0, 2, 115.0))
sketch4.addConstraint(Sketcher.Constraint("DistanceY", 0, 2, -1, 1, 25.0))
sketch4.setExpression("Constraints[8]", "Params.sketch4_width")
sketch4.setExpression("Constraints[9]", "Params.sketch4_height")
pad3 = body.newObject("PartDesign::Pad", "Pad002")
pad3.Profile = sketch4
pad3.setExpression("Length", "Params.pad3_length")

sketch5 = body.newObject("Sketcher::SketchObject", "Sketch004")
sketch5.AttachmentSupport = (doc.getObject("YZ_Plane"), [""])
sketch5.MapMode = "FlatFace"
sketch5.AttachmentOffset = App.Placement(V(0, 0, 115), App.Rotation())
sketch5.addGeometry(Part.Circle(V(0, 18, 0), V(0, 0, 1), 8), False)
sketch5.addConstraint(Sketcher.Constraint("PointOnObject", 0, 3, -2))
sketch5.addConstraint(Sketcher.Constraint("Diameter", 0, 16.0))
sketch5.addConstraint(Sketcher.Constraint("DistanceY", -1, 1, 0, 3, 18.0))
sketch5.setExpression("Constraints[1]", "Params.sketch5_diameter")
pocket2 = body.newObject("PartDesign::Pocket", "Pocket001")
pocket2.Profile = sketch5
pocket2.setExpression("Length", "Params.pocket2_length")
pocket2.Reversed = True

sketch6 = body.newObject("Sketcher::SketchObject", "Sketch005")
sketch6.AttachmentSupport = (doc.getObject("XY_Plane"), [""])
sketch6.MapMode = "FlatFace"
sketch6.AttachmentOffset = App.Placement(V(0, 0, 3), App.Rotation())
sketch6.addGeometry(Part.Circle(V(150, 90, 0), V(0, 0, 1), 2.6), False)
sketch6.addGeometry(Part.Circle(V(180, 90, 0), V(0, 0, 1), 2.6), False)
sketch6.addGeometry(Part.Circle(V(180, 110, 0), V(0, 0, 1), 2.6), False)
sketch6.addGeometry(Part.Circle(V(150, 110, 0), V(0, 0, 1), 2.6), False)
sketch6.addGeometry(Part.Circle(V(150, -90, 0), V(0, 0, 1), 2.6), False)
sketch6.addGeometry(Part.Circle(V(150, -110, 0), V(0, 0, 1), 2.6), False)
sketch6.addGeometry(Part.Circle(V(180, -110, 0), V(0, 0, 1), 2.6), False)
sketch6.addGeometry(Part.Circle(V(180, -90, 0), V(0, 0, 1), 2.6), False)
sketch6.addConstraint(Sketcher.Constraint("Equal", 0, 1))
sketch6.addConstraint(Sketcher.Constraint("Equal", 1, 2))
sketch6.addConstraint(Sketcher.Constraint("Equal", 2, 3))
sketch6.addConstraint(Sketcher.Constraint("Equal", 3, 4))
sketch6.addConstraint(Sketcher.Constraint("Equal", 4, 5))
sketch6.addConstraint(Sketcher.Constraint("Equal", 5, 6))
sketch6.addConstraint(Sketcher.Constraint("Equal", 6, 7))
sketch6.addConstraint(Sketcher.Constraint("Symmetric", 0, 3, 4, 3, -1))
sketch6.addConstraint(Sketcher.Constraint("Symmetric", 3, 3, 5, 3, -1))
sketch6.addConstraint(Sketcher.Constraint("Symmetric", 2, 3, 6, 3, -1))
sketch6.addConstraint(Sketcher.Constraint("Symmetric", 1, 3, 7, 3, -1))
sketch6.addConstraint(Sketcher.Constraint("Horizontal", 0, 3, 1, 3))
sketch6.addConstraint(Sketcher.Constraint("Horizontal", 2, 3, 3, 3))
sketch6.addConstraint(Sketcher.Constraint("Vertical", 1, 3, 2, 3))
sketch6.addConstraint(Sketcher.Constraint("Vertical", 0, 3, 3, 3))
sketch6.addConstraint(Sketcher.Constraint("Diameter", 0, 5.2))
sketch6.addConstraint(Sketcher.Constraint("DistanceX", -1, 1, 0, 3, 150.0))
sketch6.addConstraint(Sketcher.Constraint("DistanceY", -1, 1, 0, 3, 90.0))
sketch6.addConstraint(Sketcher.Constraint("DistanceX", -1, 1, 1, 3, 180.0))
sketch6.addConstraint(Sketcher.Constraint("DistanceY", -1, 1, 2, 3, 110.0))
sketch6.setExpression("Constraints[15]", "Params.sketch6_diameter")
pocket3 = body.newObject("PartDesign::Pocket", "Pocket002")
pocket3.Profile = sketch6
pocket3.setExpression("Length", "Params.pocket3_length")

doc.recompute()
